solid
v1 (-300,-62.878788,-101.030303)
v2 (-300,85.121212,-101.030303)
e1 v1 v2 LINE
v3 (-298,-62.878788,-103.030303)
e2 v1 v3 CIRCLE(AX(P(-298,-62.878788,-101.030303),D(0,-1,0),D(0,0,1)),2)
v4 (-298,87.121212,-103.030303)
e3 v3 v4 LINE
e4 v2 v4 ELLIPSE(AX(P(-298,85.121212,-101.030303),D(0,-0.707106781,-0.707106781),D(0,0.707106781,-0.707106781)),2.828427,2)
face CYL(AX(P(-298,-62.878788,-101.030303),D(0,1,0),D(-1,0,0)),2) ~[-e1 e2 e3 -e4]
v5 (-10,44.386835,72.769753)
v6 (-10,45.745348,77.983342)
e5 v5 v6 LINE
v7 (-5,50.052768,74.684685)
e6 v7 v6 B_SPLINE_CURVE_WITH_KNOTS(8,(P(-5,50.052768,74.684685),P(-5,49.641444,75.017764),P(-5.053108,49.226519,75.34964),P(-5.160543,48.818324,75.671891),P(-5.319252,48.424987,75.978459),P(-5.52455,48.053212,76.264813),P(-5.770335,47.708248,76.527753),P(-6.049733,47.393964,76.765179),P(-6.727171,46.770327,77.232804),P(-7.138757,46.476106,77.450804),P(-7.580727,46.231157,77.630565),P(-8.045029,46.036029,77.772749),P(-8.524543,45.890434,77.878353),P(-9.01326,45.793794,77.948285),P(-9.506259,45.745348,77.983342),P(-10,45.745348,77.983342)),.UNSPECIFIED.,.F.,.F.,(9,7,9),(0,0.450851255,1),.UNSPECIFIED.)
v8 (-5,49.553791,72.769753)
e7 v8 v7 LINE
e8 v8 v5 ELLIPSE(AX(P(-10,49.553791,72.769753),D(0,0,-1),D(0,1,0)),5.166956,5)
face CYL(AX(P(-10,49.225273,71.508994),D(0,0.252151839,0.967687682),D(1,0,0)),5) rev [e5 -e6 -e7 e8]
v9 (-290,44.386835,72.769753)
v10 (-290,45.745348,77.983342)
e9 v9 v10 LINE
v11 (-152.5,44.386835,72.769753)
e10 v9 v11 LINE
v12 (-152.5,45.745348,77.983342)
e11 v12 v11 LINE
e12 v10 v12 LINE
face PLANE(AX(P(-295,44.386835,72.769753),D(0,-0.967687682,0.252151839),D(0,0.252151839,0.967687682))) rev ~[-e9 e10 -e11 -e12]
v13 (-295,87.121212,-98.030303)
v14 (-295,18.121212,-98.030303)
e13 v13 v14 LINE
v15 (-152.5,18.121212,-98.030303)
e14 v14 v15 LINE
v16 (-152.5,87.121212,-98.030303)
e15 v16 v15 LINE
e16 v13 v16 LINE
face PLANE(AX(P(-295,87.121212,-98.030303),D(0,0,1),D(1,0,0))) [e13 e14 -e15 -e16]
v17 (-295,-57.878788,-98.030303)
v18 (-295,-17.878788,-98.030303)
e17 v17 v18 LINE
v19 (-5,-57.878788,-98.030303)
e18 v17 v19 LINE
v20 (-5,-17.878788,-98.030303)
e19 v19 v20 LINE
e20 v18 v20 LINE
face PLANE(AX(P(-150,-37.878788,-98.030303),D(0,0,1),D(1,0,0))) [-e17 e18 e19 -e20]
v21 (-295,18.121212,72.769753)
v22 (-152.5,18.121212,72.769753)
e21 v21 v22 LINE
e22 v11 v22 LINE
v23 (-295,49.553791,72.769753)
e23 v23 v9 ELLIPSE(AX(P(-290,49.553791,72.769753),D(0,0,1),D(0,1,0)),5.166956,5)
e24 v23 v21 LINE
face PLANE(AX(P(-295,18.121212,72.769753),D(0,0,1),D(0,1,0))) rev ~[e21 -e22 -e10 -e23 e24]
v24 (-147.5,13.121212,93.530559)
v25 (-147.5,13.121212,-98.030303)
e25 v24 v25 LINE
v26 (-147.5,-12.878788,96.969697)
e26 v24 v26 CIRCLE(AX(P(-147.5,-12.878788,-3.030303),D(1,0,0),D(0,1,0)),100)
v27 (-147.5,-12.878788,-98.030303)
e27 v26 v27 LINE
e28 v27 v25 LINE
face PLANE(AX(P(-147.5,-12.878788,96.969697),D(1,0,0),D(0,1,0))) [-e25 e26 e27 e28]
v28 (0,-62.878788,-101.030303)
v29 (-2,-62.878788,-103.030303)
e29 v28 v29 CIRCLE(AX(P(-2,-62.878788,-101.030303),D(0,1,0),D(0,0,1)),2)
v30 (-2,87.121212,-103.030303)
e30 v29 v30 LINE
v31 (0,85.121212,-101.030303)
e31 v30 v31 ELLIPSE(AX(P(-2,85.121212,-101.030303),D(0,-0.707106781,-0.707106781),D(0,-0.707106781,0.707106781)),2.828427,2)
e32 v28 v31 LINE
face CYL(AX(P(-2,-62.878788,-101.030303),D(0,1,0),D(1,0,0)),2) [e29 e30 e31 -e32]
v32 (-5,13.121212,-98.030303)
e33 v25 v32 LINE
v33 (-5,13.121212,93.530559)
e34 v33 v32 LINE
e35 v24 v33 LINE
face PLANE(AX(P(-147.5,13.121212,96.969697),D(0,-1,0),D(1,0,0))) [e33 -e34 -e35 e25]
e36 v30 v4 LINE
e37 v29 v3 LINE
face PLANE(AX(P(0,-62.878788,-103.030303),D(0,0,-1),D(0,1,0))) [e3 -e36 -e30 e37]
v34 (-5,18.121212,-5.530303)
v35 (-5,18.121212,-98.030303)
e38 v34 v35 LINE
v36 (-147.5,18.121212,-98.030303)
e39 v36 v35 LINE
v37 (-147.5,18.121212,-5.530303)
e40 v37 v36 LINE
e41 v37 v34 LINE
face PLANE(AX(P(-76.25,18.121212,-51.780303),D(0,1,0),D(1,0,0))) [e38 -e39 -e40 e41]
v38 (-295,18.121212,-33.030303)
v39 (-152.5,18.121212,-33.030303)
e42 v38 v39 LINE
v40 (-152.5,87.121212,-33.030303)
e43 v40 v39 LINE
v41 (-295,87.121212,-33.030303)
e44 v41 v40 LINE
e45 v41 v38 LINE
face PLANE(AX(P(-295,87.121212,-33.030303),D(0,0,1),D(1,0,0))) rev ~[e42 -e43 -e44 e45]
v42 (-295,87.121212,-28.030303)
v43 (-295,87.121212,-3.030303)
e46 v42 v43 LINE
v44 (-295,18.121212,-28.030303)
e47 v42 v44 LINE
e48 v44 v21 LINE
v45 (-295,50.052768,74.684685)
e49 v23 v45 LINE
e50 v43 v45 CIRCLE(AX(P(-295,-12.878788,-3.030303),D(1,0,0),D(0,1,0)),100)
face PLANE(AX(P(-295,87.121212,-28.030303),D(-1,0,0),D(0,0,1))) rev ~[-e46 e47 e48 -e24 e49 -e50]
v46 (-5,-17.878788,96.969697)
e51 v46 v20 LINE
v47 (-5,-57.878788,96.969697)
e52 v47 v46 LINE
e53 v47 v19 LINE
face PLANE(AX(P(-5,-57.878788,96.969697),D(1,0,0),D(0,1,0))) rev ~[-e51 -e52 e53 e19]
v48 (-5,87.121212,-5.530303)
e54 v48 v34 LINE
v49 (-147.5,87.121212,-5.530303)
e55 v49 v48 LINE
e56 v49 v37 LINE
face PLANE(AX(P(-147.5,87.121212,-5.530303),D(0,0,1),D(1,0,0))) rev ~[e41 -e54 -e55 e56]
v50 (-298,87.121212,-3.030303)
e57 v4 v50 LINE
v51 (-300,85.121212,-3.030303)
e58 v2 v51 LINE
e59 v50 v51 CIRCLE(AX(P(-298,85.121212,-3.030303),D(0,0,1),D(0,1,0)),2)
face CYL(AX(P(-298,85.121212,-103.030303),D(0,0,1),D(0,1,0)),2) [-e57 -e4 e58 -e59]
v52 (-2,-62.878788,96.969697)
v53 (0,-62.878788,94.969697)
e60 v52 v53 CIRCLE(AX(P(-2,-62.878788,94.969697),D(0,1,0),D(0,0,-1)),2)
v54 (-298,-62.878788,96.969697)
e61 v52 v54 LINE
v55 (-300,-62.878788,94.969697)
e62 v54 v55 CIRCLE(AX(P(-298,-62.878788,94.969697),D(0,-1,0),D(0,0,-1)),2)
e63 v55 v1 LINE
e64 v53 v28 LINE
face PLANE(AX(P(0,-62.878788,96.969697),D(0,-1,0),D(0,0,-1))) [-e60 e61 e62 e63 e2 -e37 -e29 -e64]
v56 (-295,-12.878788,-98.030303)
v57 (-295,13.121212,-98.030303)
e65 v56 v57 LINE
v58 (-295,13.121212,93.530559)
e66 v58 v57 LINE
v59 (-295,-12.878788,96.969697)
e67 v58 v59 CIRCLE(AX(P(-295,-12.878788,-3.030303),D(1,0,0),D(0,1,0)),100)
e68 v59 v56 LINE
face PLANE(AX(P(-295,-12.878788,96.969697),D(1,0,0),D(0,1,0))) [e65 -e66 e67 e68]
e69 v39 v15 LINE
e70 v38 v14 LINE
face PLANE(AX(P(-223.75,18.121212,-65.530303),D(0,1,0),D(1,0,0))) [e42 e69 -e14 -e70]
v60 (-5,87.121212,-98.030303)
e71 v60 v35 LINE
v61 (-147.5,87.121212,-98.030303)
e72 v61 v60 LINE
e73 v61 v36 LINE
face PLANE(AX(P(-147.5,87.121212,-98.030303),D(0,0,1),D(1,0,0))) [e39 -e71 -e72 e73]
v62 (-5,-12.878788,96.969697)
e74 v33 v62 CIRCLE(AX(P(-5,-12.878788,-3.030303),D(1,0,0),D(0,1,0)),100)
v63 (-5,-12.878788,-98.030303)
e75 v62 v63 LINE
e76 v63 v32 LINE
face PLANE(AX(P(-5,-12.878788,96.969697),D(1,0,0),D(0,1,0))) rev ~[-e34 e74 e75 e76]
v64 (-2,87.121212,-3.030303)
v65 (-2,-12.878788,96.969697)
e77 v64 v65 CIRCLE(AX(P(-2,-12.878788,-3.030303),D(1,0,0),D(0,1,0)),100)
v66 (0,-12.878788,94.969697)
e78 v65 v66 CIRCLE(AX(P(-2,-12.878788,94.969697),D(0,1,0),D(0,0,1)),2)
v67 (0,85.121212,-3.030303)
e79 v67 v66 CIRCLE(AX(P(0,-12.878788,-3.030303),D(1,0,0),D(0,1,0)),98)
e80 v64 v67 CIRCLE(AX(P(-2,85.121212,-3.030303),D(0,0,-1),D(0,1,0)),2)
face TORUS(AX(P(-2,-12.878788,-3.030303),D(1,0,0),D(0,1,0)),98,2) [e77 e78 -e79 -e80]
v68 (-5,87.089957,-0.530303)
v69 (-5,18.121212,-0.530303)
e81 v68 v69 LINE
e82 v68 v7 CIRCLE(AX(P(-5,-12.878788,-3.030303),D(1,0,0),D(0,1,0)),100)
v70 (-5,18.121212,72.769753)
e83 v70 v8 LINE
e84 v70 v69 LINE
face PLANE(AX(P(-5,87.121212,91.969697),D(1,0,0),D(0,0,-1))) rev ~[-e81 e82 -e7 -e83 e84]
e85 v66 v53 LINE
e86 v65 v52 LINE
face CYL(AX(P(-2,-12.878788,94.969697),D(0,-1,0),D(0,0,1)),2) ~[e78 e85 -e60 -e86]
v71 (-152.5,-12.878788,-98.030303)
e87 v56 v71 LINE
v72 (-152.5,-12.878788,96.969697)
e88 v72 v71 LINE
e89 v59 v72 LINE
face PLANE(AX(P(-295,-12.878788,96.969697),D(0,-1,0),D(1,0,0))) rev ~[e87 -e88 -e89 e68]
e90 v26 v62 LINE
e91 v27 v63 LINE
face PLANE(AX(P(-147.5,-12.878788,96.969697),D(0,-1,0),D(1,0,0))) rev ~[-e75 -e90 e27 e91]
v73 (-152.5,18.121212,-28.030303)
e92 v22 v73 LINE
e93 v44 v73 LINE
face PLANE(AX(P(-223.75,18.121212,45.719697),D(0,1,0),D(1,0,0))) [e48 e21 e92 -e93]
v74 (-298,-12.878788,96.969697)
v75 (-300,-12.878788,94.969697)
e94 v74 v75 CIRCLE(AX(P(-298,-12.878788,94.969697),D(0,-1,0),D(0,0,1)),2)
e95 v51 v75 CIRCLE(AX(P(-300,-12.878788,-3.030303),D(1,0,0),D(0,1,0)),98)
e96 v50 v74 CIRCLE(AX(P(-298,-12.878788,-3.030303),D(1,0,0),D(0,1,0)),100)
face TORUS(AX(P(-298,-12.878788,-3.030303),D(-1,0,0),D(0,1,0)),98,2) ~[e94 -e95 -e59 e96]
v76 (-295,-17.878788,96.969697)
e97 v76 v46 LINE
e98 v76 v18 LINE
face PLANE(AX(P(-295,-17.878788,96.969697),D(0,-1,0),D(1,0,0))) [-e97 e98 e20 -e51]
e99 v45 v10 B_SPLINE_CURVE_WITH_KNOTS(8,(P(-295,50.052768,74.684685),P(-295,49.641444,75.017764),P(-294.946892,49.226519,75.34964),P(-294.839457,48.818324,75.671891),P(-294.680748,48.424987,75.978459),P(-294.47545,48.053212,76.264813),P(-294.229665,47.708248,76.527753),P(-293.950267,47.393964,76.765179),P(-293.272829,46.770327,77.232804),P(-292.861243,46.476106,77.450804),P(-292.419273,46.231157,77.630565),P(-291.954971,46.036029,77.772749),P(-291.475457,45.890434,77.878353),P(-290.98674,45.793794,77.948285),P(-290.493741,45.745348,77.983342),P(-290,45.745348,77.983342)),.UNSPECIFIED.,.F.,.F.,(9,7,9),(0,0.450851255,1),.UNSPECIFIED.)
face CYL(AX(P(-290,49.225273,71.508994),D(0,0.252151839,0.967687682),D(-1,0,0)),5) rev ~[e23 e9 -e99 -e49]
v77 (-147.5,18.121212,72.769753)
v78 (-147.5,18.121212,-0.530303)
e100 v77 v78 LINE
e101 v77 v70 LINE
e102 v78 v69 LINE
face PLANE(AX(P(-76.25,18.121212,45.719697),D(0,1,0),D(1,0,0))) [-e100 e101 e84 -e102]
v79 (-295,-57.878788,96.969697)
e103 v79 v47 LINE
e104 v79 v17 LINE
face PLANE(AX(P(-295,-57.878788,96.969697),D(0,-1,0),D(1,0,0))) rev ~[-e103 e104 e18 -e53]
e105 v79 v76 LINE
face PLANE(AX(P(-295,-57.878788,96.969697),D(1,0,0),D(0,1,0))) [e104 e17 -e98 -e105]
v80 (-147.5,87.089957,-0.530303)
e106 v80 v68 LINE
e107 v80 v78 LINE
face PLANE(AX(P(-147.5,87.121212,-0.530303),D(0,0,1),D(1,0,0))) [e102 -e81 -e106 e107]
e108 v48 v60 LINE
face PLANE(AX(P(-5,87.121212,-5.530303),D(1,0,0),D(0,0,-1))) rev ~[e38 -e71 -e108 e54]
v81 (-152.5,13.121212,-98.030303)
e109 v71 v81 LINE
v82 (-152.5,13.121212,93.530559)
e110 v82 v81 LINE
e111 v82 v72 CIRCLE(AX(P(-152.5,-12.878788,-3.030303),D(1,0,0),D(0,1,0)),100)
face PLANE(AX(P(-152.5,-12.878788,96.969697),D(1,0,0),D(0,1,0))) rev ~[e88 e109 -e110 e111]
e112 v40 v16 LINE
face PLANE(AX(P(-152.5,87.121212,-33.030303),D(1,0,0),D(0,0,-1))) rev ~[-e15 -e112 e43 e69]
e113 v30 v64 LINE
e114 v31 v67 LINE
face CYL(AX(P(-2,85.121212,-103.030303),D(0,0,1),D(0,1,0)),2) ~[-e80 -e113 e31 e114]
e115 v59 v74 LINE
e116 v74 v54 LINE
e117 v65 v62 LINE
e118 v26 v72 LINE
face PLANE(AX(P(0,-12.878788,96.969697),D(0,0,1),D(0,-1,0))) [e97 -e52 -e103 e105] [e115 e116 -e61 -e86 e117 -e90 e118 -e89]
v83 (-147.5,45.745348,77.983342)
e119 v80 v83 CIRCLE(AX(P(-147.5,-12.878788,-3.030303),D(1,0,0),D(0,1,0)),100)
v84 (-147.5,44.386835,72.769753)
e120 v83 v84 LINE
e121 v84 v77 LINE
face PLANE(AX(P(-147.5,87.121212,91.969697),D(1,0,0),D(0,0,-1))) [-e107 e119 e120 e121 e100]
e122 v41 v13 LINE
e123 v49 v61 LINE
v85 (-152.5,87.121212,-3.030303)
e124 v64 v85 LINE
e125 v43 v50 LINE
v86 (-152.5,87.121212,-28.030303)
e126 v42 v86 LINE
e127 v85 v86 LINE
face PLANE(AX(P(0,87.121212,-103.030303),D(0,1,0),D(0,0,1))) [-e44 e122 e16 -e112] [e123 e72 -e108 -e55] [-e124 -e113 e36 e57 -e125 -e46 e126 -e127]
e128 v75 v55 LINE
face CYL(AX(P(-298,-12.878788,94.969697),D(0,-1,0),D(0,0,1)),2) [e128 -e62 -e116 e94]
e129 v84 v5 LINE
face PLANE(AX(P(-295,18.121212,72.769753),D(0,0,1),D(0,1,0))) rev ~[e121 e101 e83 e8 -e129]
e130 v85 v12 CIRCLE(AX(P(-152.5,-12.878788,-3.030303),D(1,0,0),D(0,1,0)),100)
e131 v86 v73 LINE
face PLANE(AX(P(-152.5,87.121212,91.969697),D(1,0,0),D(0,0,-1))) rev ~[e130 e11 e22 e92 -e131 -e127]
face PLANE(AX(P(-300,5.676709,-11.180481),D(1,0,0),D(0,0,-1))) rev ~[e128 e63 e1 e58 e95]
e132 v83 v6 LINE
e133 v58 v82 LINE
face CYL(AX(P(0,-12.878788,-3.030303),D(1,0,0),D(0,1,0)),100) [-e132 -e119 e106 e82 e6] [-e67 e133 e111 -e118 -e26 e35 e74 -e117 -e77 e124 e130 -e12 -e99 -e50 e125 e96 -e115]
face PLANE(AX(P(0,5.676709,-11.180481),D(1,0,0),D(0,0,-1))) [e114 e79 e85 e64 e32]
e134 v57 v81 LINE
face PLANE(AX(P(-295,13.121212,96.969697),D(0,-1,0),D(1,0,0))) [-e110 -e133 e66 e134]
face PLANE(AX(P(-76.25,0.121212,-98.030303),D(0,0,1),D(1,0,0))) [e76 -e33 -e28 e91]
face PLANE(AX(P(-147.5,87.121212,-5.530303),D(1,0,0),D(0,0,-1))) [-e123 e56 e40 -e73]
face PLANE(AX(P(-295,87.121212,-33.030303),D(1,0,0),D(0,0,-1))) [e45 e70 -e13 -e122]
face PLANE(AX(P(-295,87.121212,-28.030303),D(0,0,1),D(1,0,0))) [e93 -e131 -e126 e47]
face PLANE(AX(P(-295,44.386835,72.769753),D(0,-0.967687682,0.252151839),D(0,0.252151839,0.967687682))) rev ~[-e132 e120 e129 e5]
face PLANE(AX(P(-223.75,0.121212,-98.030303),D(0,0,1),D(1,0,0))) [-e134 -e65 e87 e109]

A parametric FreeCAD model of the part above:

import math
import FreeCAD as App
import Part
import Sketcher

V = App.Vector


def edges_at(feature, points):
    """Names of the edges that pass closest to the given points."""
    edges = feature.Shape.Edges
    near = lambda p: min(range(len(edges)), key=lambda i: edges[i].distToShape(Part.Vertex(*p))[0])
    return sorted({f"Edge{near(p) + 1}" for p in points})

doc = App.newDocument("Part")
body = doc.addObject("PartDesign::Body", "Body")

sketch1 = body.newObject("Sketcher::SketchObject", "Sketch")
sketch1.AttachmentSupport = (doc.getObject("YZ_Plane"), [""])
sketch1.MapMode = "FlatFace"
sketch1.addGeometry([
    Part.LineSegment(V(-62.878788, 96.969697, 0), V(-62.878788, -103.030303, 0)),
    Part.LineSegment(V(-62.878788, -103.030303, 0), V(87.121212, -103.030303, 0)),
    Part.LineSegment(V(87.121212, -103.030303, 0), V(87.121212, -3.030303, 0)),
    Part.ArcOfCircle(Part.Circle(V(-12.878788, -3.030303, 0), V(0, 0, 1), 100), math.radians(0), math.radians(90)),
    Part.LineSegment(V(-12.878788, 96.969697, 0), V(-62.878788, 96.969697, 0)),
], False)
sketch1.addConstraint([
    Sketcher.Constraint("Coincident", 0, 2, 1, 1),
    Sketcher.Constraint("Coincident", 1, 2, 2, 1),
    Sketcher.Constraint("Tangent", 2, 2, 3, 1),
    Sketcher.Constraint("Tangent", 3, 2, 4, 1),
    Sketcher.Constraint("Coincident", 4, 2, 0, 1),
    Sketcher.Constraint("Vertical", 0),
    Sketcher.Constraint("Horizontal", 1),
    Sketcher.Constraint("Vertical", 2),
    Sketcher.Constraint("Horizontal", 4),
    Sketcher.Constraint("Radius", 3, 100.0),
    Sketcher.Constraint("DistanceX", 1, 1, 1, 2, 150.0),
    Sketcher.Constraint("DistanceY", 0, 2, 0, 1, 200.0),
    Sketcher.Constraint("DistanceX", 3, 3, -1, 1, 12.878788),
    Sketcher.Constraint("DistanceY", 3, 3, -1, 1, 3.030303),
])
pad1 = body.newObject("PartDesign::Pad", "Pad")
pad1.Profile = sketch1
pad1.Length = 300
pad1.Reversed = True

sketch2 = body.newObject("Sketcher::SketchObject", "Sketch001")
sketch2.AttachmentSupport = (doc.getObject("XZ_Plane"), [""])
sketch2.MapMode = "FlatFace"
sketch2.AttachmentOffset = App.Placement(V(0, 0, -87.121212), App.Rotation())
sketch2.addGeometry([
    Part.LineSegment(V(-295, -98.030303, 0), V(-295, -33.030303, 0)),
    Part.LineSegment(V(-295, -33.030303, 0), V(-152.5, -33.030303, 0)),
    Part.LineSegment(V(-152.5, -33.030303, 0), V(-152.5, -98.030303, 0)),
    Part.LineSegment(V(-152.5, -98.030303, 0), V(-295, -98.030303, 0)),
    Part.LineSegment(V(-147.5, -98.030303, 0), V(-147.5, -5.530303, 0)),
    Part.LineSegment(V(-147.5, -5.530303, 0), V(-5, -5.530303, 0)),
    Part.LineSegment(V(-5, -5.530303, 0), V(-5, -98.030303, 0)),
    Part.LineSegment(V(-5, -98.030303, 0), V(-147.5, -98.030303, 0)),
    Part.LineSegment(V(-147.5, -0.530303, 0), V(-147.5, 91.969697, 0)),
    Part.LineSegment(V(-147.5, 91.969697, 0), V(-5, 91.969697, 0)),
    Part.LineSegment(V(-5, 91.969697, 0), V(-5, -0.530303, 0)),
    Part.LineSegment(V(-5, -0.530303, 0), V(-147.5, -0.530303, 0)),
    Part.LineSegment(V(-295, 91.969697, 0), V(-152.5, 91.969697, 0)),
    Part.LineSegment(V(-152.5, 91.969697, 0), V(-152.5, -28.030303, 0)),
    Part.LineSegment(V(-152.5, -28.030303, 0), V(-295, -28.030303, 0)),
    Part.LineSegment(V(-295, -28.030303, 0), V(-295, 91.969697, 0)),
], False)
sketch2.addConstraint([
    Sketcher.Constraint("Coincident", 0, 2, 1, 1),
    Sketcher.Constraint("Coincident", 1, 2, 2, 1),
    Sketcher.Constraint("Coincident", 2, 2, 3, 1),
    Sketcher.Constraint("Coincident", 3, 2, 0, 1),
    Sketcher.Constraint("Coincident", 4, 2, 5, 1),
    Sketcher.Constraint("Coincident", 5, 2, 6, 1),
    Sketcher.Constraint("Coincident", 6, 2, 7, 1),
    Sketcher.Constraint("Coincident", 7, 2, 4, 1),
    Sketcher.Constraint("Coincident", 8, 2, 9, 1),
    Sketcher.Constraint("Coincident", 9, 2, 10, 1),
    Sketcher.Constraint("Coincident", 10, 2, 11, 1),
    Sketcher.Constraint("Coincident", 11, 2, 8, 1),
    Sketcher.Constraint("Coincident", 12, 2, 13, 1),
    Sketcher.Constraint("Coincident", 13, 2, 14, 1),
    Sketcher.Constraint("Coincident", 14, 2, 15, 1),
    Sketcher.Constraint("Coincident", 15, 2, 12, 1),
    Sketcher.Constraint("Vertical", 0),
    Sketcher.Constraint("Horizontal", 1),
    Sketcher.Constraint("Vertical", 2),
    Sketcher.Constraint("Horizontal", 3),
    Sketcher.Constraint("Vertical", 4),
    Sketcher.Constraint("Horizontal", 5),
    Sketcher.Constraint("Vertical", 6),
    Sketcher.Constraint("Horizontal", 7),
    Sketcher.Constraint("Vertical", 8),
    Sketcher.Constraint("Horizontal", 9),
    Sketcher.Constraint("Vertical", 10),
    Sketcher.Constraint("Horizontal", 11),
    Sketcher.Constraint("Horizontal", 12),
    Sketcher.Constraint("Vertical", 13),
    Sketcher.Constraint("Horizontal", 14),
    Sketcher.Constraint("Vertical", 15),
    Sketcher.Constraint("Horizontal", 3, 2, 6, 2),
    Sketcher.Constraint("Horizontal", 9, 2, 12, 2),
    Sketcher.Constraint("Vertical", 7, 2, 8, 2),
    Sketcher.Constraint("Vertical", 6, 2, 9, 2),
    Sketcher.Constraint("Vertical", 2, 2, 12, 2),
    Sketcher.Constraint("Vertical", 3, 2, 14, 2),
    Sketcher.Constraint("Equal", 3, 5),
    Sketcher.Constraint("Equal", 6, 8),
    Sketcher.Constraint("DistanceY", 0, 1, 0, 2, 65.0),
    Sketcher.Constraint("DistanceY", 13, 2, 13, 1, 120.0),
    Sketcher.Constraint("DistanceX", 1, 1, 1, 2, 142.5),
    Sketcher.Constraint("DistanceY", 4, 1, 4, 2, 92.5),
    Sketcher.Constraint("DistanceX", 0, 2, -1, 1, 295.0),
    Sketcher.Constraint("DistanceX", 5, 2, -1, 1, 5.0),
    Sketcher.Constraint("DistanceY", 1, 2, 8, 2, 125.0),
    Sketcher.Constraint("DistanceY", 0, 2, -1, 1, 33.030303),
])
pocket1 = body.newObject("PartDesign::Pocket", "Pocket")
pocket1.Profile = sketch2
pocket1.Length = 69
pocket1.Reversed = True

sketch3 = body.newObject("Sketcher::SketchObject", "Sketch002")
sketch3.AttachmentSupport = (doc.getObject("XY_Plane"), [""])
sketch3.MapMode = "FlatFace"
sketch3.AttachmentOffset = App.Placement(V(0, 0, 96.969697), App.Rotation())
sketch3.addGeometry([
    Part.LineSegment(V(-147.5, 13.121212, 0), V(-147.5, -12.878788, 0)),
    Part.LineSegment(V(-147.5, -12.878788, 0), V(-5, -12.878788, 0)),
    Part.LineSegment(V(-5, -12.878788, 0), V(-5, 13.121212, 0)),
    Part.LineSegment(V(-5, 13.121212, 0), V(-147.5, 13.121212, 0)),
    Part.LineSegment(V(-295, 13.121212, 0), V(-295, -12.878788, 0)),
    Part.LineSegment(V(-295, -12.878788, 0), V(-152.5, -12.878788, 0)),
    Part.LineSegment(V(-152.5, -12.878788, 0), V(-152.5, 13.121212, 0)),
    Part.LineSegment(V(-152.5, 13.121212, 0), V(-295, 13.121212, 0)),
    Part.LineSegment(V(-295, -17.878788, 0), V(-295, -57.878788, 0)),
    Part.LineSegment(V(-295, -57.878788, 0), V(-5, -57.878788, 0)),
    Part.LineSegment(V(-5, -57.878788, 0), V(-5, -17.878788, 0)),
    Part.LineSegment(V(-5, -17.878788, 0), V(-295, -17.878788, 0)),
], False)
sketch3.addConstraint([
    Sketcher.Constraint("Coincident", 0, 2, 1, 1),
    Sketcher.Constraint("Coincident", 1, 2, 2, 1),
    Sketcher.Constraint("Coincident", 2, 2, 3, 1),
    Sketcher.Constraint("Coincident", 3, 2, 0, 1),
    Sketcher.Constraint("Coincident", 4, 2, 5, 1),
    Sketcher.Constraint("Coincident", 5, 2, 6, 1),
    Sketcher.Constraint("Coincident", 6, 2, 7, 1),
    Sketcher.Constraint("Coincident", 7, 2, 4, 1),
    Sketcher.Constraint("Coincident", 8, 2, 9, 1),
    Sketcher.Constraint("Coincident", 9, 2, 10, 1),
    Sketcher.Constraint("Coincident", 10, 2, 11, 1),
    Sketcher.Constraint("Coincident", 11, 2, 8, 1),
    Sketcher.Constraint("Vertical", 0),
    Sketcher.Constraint("Horizontal", 1),
    Sketcher.Constraint("Vertical", 2),
    Sketcher.Constraint("Horizontal", 3),
    Sketcher.Constraint("Vertical", 4),
    Sketcher.Constraint("Horizontal", 5),
    Sketcher.Constraint("Vertical", 6),
    Sketcher.Constraint("Horizontal", 7),
    Sketcher.Constraint("Vertical", 8),
    Sketcher.Constraint("Horizontal", 9),
    Sketcher.Constraint("Vertical", 10),
    Sketcher.Constraint("Horizontal", 11),
    Sketcher.Constraint("Horizontal", 1, 2, 4, 2),
    Sketcher.Constraint("Horizontal", 3, 2, 6, 2),
    Sketcher.Constraint("Vertical", 7, 2, 8, 2),
    Sketcher.Constraint("Vertical", 2, 2, 9, 2),
    Sketcher.Constraint("Equal", 3, 5),
    Sketcher.Constraint("DistanceX", 9, 1, 9, 2, 290.0),
    Sketcher.Constraint("DistanceY", 0, 2, 0, 1, 26.0),
    Sketcher.Constraint("DistanceY", 8, 2, 8, 1, 40.0),
    Sketcher.Constraint("DistanceX", 1, 1, 1, 2, 142.5),
    Sketcher.Constraint("DistanceX", 1, 2, -1, 1, 5.0),
    Sketcher.Constraint("DistanceY", 8, 2, 4, 2, 45.0),
    Sketcher.Constraint("DistanceY", 0, 2, -1, 1, 12.878788),
])
pocket2 = body.newObject("PartDesign::Pocket", "Pocket001")
pocket2.Profile = sketch3
pocket2.Length = 195

sketch4 = body.newObject("Sketcher::SketchObject", "Sketch003")
sketch4.AttachmentSupport = (doc.getObject("YZ_Plane"), [""])
sketch4.MapMode = "FlatFace"
sketch4.AttachmentOffset = App.Placement(V(0, 0, -295), App.Rotation())
sketch4.addGeometry([
    Part.LineSegment(V(18.121212, 72.769753, 0), V(44.386835, 72.769753, 0)),
    Part.LineSegment(V(44.386835, 72.769753, 0), V(45.745348, 77.983342, 0)),
    Part.ArcOfCircle(Part.Circle(V(-12.878788, -3.030303, 0), V(0, 0, 1), 100), math.radians(54.109265), math.radians(71.805128)),
    Part.LineSegment(V(18.346202, 91.969697, 0), V(18.121212, 91.969697, 0)),
    Part.LineSegment(V(18.121212, 91.969697, 0), V(18.121212, 72.769753, 0)),
], False)
sketch4.addConstraint([
    Sketcher.Constraint("Coincident", 0, 2, 1, 1),
    Sketcher.Constraint("Coincident", 1, 2, 2, 1),
    Sketcher.Constraint("Coincident", 2, 2, 3, 1),
    Sketcher.Constraint("Coincident", 3, 2, 4, 1),
    Sketcher.Constraint("Coincident", 4, 2, 0, 1),
    Sketcher.Constraint("Horizontal", 0),
    Sketcher.Constraint("Horizontal", 3),
    Sketcher.Constraint("Vertical", 4),
    Sketcher.Constraint("Radius", 2, 100.0),
    Sketcher.Constraint("DistanceY", 2, 3, 2, 2, 95.0),
    Sketcher.Constraint("DistanceX", 2, 3, 3, 2, 31.0),
    Sketcher.Constraint("DistanceX", 0, 1, 0, 2, 26.265623),
    Sketcher.Constraint("DistanceY", 4, 2, 4, 1, 19.199944),
    Sketcher.Constraint("DistanceY", 0, 2, 1, 2, 5.21359),
    Sketcher.Constraint("DistanceX", 2, 3, -1, 1, 12.878788),
    Sketcher.Constraint("DistanceY", 2, 3, -1, 1, 3.030303),
])
pad2 = body.newObject("PartDesign::Pad", "Pad001")
pad2.Profile = sketch4
pad2.Length = 290
doc.recompute()

fillet = body.newObject("PartDesign::Fillet", "Fillet")
fillet.Base = (pad2, edges_at(pad2, [
    (-300, 12.121, -103.03),
    (-300, 87.121, -53.03),
    (-300, 57.832, 67.68),
    (-300, -37.879, 96.97),
    (0, 57.832, 67.68),
    (0, 87.121, -53.03),
    (0, 12.121, -103.03),
    (0, -37.879, 96.97),
]))
fillet.Radius = 2
doc.recompute()

fillet2 = body.newObject("PartDesign::Fillet", "Fillet001")
fillet2.Base = (fillet, edges_at(fillet, [(-5, 45.066, 75.377), (-295, 45.066, 75.377)]))
fillet2.Radius = 5

doc.recompute()
